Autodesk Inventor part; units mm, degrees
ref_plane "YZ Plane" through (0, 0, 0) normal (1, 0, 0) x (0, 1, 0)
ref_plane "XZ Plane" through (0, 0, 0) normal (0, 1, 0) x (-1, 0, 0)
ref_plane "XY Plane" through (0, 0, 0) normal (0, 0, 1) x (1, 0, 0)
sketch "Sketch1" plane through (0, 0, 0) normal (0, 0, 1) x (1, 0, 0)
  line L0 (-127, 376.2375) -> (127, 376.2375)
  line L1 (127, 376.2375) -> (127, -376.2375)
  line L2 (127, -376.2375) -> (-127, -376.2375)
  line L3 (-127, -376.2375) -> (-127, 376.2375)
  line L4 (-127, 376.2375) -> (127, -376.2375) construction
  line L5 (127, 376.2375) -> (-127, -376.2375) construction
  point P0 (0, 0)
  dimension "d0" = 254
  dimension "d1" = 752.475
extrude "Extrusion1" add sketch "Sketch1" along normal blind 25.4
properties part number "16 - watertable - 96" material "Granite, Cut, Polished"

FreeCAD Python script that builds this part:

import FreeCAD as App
import Part
import Sketcher
Q = App.Units.Quantity


def add_polygon(sketch, points):
    """Adds a closed chain of lines whose ends are joined by coincident constraints."""
    first, n = sketch.GeometryCount, len(points)
    for a, b in zip(points, points[1:] + points[:1]):
        sketch.addGeometry(Part.LineSegment(App.Vector(*a, 0), App.Vector(*b, 0)), False)
    for i in range(n):
        sketch.addConstraint(Sketcher.Constraint("Coincident", first + i, 2, first + (i + 1) % n, 1))

doc = App.newDocument("Part")
params = doc.addObject("Spreadsheet::Sheet", "Params")
for row, (alias, value) in enumerate([
    ("sketch1_width", "10 in"),
    ("sketch1_height", "29.625 in"),
    ("pad1_length", "1 in"),
], start=1):
    params.set(f"A{row}", alias)
    params.set(f"B{row}", "=" + value)
    params.setAlias(f"B{row}", alias)

body = doc.addObject("PartDesign::Body", "Body")

# Sketch on XY plane
sketch1 = doc.addObject("Sketcher::SketchObject", "Sketch")
body.addObject(sketch1)
sketch1.AttachmentSupport = (doc.XY_Plane, [""])
sketch1.MapMode = "FlatFace"
add_polygon(sketch1, [(127, 376), (-127, 376), (-127, -376), (127, -376)])  # lines 0-3
sketch1.addConstraint(Sketcher.Constraint("Horizontal", 0))
sketch1.addConstraint(Sketcher.Constraint("Vertical", 1))
sketch1.addConstraint(Sketcher.Constraint("Horizontal", 2))
sketch1.addConstraint(Sketcher.Constraint("Vertical", 3))
sketch1.addConstraint(Sketcher.Constraint("Symmetric", 0, 2, 2, 2, -1, 1))
sketch1.addConstraint(Sketcher.Constraint("DistanceX", 0, 2, 0, 1, Q("10 in")))
sketch1.addConstraint(Sketcher.Constraint("DistanceY", 1, 2, 1, 1, Q("29.625 in")))
sketch1.setExpression("Constraints[9]", "Params.sketch1_width")
sketch1.setExpression("Constraints[10]", "Params.sketch1_height")
pad1 = doc.addObject("PartDesign::Pad", "Pad")
body.addObject(pad1)
pad1.Profile = sketch1
pad1.setExpression("Length", "Params.pad1_length")

doc.recompute()
